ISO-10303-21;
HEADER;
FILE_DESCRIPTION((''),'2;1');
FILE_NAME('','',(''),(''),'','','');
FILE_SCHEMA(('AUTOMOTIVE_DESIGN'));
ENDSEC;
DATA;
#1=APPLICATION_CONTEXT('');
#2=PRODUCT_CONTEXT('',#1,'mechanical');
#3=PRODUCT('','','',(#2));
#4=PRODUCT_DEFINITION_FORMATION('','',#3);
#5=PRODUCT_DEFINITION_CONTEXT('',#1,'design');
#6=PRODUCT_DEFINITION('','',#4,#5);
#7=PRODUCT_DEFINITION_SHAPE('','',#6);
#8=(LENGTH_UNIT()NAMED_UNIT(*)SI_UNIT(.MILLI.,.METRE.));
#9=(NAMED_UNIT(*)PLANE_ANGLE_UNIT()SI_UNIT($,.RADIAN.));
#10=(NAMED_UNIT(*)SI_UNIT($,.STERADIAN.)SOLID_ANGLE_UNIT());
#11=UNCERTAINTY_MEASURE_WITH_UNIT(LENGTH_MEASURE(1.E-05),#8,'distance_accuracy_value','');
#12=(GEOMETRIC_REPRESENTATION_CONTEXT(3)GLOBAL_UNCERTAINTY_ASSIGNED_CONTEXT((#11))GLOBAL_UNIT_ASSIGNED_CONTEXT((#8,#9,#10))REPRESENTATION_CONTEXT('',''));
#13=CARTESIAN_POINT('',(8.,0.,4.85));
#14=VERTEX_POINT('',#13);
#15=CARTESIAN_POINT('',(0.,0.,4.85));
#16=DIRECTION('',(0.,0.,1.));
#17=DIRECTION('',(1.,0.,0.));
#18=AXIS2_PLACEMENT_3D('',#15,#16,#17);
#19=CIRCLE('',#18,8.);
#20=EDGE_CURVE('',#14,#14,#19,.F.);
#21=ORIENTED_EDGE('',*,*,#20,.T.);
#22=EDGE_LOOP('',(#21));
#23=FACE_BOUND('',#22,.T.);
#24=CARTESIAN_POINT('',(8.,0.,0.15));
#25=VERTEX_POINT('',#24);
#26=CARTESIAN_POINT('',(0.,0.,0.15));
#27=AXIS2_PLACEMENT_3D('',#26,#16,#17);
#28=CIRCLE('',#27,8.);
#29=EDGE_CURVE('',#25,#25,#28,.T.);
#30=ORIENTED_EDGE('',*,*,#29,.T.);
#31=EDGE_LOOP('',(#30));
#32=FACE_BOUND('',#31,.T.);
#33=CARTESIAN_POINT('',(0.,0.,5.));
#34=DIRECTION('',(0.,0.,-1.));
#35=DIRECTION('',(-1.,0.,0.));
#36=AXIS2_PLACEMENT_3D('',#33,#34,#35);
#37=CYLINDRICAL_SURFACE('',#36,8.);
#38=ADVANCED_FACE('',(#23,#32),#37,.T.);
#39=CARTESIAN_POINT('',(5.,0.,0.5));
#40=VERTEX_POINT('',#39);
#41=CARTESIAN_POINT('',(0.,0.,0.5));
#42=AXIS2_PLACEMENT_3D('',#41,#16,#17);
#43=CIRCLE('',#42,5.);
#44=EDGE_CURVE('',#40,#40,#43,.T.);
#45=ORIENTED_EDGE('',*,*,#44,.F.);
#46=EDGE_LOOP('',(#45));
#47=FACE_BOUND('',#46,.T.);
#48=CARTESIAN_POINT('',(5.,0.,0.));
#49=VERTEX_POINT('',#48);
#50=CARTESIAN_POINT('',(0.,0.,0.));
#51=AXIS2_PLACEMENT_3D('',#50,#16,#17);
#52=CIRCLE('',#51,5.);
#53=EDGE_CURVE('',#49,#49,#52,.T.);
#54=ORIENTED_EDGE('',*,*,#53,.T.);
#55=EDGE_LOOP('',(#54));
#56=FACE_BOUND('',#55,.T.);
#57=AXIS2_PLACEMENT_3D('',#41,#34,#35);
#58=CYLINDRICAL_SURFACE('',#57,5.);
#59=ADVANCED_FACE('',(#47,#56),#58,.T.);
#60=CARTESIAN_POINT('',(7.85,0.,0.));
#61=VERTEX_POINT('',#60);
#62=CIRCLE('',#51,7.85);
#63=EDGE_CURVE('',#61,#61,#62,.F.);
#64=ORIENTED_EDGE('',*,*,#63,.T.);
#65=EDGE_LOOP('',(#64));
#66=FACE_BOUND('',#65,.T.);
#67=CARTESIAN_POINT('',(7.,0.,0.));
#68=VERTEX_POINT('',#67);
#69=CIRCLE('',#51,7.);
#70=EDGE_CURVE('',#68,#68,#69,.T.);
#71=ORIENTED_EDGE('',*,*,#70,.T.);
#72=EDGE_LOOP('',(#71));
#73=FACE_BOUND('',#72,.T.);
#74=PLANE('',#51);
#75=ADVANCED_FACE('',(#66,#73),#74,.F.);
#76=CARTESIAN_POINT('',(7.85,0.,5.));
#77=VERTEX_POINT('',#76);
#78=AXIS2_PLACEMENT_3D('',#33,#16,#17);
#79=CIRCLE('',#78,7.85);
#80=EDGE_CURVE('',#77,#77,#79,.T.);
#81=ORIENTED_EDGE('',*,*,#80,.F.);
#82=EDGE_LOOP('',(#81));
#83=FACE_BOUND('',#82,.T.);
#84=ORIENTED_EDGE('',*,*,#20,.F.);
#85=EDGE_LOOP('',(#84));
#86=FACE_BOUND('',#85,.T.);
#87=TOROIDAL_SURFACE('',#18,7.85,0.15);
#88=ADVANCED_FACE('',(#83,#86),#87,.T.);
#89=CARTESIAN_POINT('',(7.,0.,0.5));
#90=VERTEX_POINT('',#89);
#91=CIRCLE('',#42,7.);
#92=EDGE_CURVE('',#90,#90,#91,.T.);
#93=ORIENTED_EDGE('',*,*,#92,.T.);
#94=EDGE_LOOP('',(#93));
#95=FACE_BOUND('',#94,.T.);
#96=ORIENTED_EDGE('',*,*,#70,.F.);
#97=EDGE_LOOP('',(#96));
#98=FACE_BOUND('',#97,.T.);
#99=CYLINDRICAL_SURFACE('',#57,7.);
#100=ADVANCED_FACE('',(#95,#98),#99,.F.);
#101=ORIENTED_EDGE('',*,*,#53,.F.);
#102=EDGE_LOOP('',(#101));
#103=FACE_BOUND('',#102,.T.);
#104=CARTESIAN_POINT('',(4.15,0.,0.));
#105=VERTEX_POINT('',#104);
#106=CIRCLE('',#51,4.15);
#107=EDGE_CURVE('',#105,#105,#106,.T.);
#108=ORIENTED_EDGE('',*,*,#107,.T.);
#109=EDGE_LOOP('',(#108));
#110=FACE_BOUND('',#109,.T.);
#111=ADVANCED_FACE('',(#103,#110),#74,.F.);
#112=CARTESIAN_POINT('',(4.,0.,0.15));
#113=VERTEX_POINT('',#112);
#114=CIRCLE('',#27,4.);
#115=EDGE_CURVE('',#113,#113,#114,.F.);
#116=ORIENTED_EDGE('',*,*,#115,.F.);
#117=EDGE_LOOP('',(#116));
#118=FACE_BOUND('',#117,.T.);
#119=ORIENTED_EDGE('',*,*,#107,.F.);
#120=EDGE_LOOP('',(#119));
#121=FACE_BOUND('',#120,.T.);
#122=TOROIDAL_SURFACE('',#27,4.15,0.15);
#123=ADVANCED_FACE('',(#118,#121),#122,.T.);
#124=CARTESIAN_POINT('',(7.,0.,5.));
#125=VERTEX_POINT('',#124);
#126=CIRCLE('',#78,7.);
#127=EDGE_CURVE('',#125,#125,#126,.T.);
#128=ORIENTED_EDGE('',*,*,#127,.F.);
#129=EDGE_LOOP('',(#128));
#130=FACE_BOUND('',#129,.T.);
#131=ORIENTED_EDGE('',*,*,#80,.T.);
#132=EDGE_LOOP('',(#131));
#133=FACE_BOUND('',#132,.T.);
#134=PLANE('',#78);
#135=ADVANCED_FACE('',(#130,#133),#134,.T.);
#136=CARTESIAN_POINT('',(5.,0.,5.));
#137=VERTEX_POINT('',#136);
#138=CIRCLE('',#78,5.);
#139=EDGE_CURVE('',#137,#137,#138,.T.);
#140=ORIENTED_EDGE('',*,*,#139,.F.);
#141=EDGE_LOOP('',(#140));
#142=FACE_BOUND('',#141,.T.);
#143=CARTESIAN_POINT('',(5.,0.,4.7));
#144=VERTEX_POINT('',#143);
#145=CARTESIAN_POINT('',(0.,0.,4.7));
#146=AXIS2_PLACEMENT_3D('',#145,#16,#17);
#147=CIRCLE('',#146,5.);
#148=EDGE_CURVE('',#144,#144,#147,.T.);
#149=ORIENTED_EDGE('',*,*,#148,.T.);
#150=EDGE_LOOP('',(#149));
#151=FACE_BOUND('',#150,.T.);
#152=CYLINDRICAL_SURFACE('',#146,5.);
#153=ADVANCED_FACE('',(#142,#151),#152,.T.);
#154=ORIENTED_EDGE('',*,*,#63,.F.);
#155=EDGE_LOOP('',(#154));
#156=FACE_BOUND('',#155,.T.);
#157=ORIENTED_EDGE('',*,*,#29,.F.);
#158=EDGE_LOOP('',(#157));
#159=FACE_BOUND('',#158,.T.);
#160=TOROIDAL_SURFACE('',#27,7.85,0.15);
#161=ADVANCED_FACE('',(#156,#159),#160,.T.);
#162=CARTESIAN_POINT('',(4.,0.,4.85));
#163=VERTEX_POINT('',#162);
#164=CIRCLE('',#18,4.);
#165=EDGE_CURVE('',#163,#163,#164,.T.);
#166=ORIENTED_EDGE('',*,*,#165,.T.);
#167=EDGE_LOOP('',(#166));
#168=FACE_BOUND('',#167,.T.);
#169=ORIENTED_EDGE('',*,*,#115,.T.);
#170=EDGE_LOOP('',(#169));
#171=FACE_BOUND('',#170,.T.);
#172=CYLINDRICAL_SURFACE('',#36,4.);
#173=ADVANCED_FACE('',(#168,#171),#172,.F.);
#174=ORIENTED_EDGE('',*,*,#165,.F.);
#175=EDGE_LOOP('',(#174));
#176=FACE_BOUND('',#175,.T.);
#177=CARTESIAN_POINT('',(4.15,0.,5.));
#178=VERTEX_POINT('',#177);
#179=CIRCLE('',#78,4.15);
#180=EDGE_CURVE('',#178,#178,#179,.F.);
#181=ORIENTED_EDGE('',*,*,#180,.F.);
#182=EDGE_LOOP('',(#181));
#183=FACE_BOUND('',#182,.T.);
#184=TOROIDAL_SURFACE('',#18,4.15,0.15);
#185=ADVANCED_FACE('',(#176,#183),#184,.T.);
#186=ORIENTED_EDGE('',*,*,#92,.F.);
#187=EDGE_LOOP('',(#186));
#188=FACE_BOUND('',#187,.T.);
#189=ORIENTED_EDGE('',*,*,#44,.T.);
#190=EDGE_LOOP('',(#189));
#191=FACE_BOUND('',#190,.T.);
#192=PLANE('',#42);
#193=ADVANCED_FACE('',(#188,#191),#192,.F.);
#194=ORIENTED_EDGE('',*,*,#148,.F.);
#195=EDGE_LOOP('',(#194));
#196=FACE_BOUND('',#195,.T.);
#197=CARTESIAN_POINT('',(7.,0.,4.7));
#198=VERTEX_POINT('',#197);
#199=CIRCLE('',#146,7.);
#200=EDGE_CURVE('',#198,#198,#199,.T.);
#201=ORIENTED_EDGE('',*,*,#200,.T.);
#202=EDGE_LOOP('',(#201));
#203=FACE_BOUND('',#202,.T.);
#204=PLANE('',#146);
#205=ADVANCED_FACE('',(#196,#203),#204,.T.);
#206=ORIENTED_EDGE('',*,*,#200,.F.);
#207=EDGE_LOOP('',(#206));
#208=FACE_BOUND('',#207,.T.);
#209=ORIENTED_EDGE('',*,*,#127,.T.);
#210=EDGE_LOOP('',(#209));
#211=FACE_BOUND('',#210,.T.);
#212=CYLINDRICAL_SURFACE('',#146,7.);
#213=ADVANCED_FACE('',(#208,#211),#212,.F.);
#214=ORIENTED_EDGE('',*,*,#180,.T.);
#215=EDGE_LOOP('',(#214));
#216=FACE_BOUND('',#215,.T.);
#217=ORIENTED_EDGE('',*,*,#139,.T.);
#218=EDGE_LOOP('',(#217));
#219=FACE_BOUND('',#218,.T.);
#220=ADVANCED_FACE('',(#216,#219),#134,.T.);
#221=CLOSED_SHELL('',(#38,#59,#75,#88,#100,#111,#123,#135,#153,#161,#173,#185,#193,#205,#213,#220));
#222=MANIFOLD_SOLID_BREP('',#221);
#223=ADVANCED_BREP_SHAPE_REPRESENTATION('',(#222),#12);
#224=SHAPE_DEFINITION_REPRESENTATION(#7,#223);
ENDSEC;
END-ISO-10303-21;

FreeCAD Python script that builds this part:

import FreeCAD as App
import Part
import Sketcher
Q = App.Units.Quantity


def edges_at(feature, points):
    """Names of the edges that pass closest to the given points."""
    edges = feature.Shape.Edges
    near = lambda p: min(range(len(edges)), key=lambda i: edges[i].distToShape(Part.Vertex(*p))[0])
    return sorted({f"Edge{near(p) + 1}" for p in points})

doc = App.newDocument("Part")
body = doc.addObject("PartDesign::Body", "Body")

# Sketch on XY plane
sketch1 = body.newObject("Sketcher::SketchObject", "Sketch")
sketch1.AttachmentSupport = (doc.getObject("XY_Plane"), [""])
sketch1.MapMode = "FlatFace"
sketch1.addGeometry([
    Part.Circle(App.Vector(0, 0, 0), App.Vector(0, 0, 1), 8),
    Part.Circle(App.Vector(0, 0, 0), App.Vector(0, 0, 1), 4),
], False)
sketch1.addConstraint([
    Sketcher.Constraint("Coincident", 0, 3, -1, 1),
    Sketcher.Constraint("Coincident", 1, 3, -1, 1),
    Sketcher.Constraint("Diameter", 0, Q("16 mm")),
    Sketcher.Constraint("Diameter", 1, Q("8 mm")),
])
pad1 = body.newObject("PartDesign::Pad", "Pad")
pad1.Profile = sketch1
pad1.Length = 5

# Sketch on XY plane
sketch2 = body.newObject("Sketcher::SketchObject", "Sketch001")
sketch2.AttachmentSupport = (doc.getObject("XY_Plane"), [""])
sketch2.MapMode = "FlatFace"
sketch2.AttachmentOffset = App.Placement(App.Vector(0, 0, 5), App.Rotation())
sketch2.addGeometry([
    Part.Circle(App.Vector(0, 0, 0), App.Vector(0, 0, 1), 7),
    Part.Circle(App.Vector(0, 0, 0), App.Vector(0, 0, 1), 5),
], False)
sketch2.addConstraint([
    Sketcher.Constraint("Coincident", 0, 3, -1, 1),
    Sketcher.Constraint("Coincident", 1, 3, -1, 1),
    Sketcher.Constraint("Diameter", 0, Q("14 mm")),
    Sketcher.Constraint("Diameter", 1, Q("10 mm")),
])
pocket1 = body.newObject("PartDesign::Pocket", "Pocket")
pocket1.Profile = sketch2
pocket1.Length = 0.3

# Sketch on XY plane
sketch3 = body.newObject("Sketcher::SketchObject", "Sketch002")
sketch3.AttachmentSupport = (doc.getObject("XY_Plane"), [""])
sketch3.MapMode = "FlatFace"
sketch3.AttachmentOffset = App.Placement(App.Vector(0, 0, 0.5), App.Rotation())
sketch3.addGeometry([
    Part.Circle(App.Vector(0, 0, 0), App.Vector(0, 0, 1), 7),
    Part.Circle(App.Vector(0, 0, 0), App.Vector(0, 0, 1), 5),
], False)
sketch3.addConstraint([
    Sketcher.Constraint("Coincident", 0, 3, -1, 1),
    Sketcher.Constraint("Coincident", 1, 3, -1, 1),
    Sketcher.Constraint("Diameter", 0, Q("14 mm")),
    Sketcher.Constraint("Diameter", 1, Q("10 mm")),
])
pocket2 = body.newObject("PartDesign::Pocket", "Pocket001")
pocket2.Profile = sketch3
pocket2.Length = 0.5
doc.recompute()

fillet = body.newObject("PartDesign::Fillet", "Fillet")
fillet.Base = (pocket2, edges_at(pocket2, [
    (-8, 0, 0),
    (-8, 0, 5),
    (-4, 0, 0),
    (-4, 0, 5),
]))
fillet.Radius = 0.15

doc.recompute()
